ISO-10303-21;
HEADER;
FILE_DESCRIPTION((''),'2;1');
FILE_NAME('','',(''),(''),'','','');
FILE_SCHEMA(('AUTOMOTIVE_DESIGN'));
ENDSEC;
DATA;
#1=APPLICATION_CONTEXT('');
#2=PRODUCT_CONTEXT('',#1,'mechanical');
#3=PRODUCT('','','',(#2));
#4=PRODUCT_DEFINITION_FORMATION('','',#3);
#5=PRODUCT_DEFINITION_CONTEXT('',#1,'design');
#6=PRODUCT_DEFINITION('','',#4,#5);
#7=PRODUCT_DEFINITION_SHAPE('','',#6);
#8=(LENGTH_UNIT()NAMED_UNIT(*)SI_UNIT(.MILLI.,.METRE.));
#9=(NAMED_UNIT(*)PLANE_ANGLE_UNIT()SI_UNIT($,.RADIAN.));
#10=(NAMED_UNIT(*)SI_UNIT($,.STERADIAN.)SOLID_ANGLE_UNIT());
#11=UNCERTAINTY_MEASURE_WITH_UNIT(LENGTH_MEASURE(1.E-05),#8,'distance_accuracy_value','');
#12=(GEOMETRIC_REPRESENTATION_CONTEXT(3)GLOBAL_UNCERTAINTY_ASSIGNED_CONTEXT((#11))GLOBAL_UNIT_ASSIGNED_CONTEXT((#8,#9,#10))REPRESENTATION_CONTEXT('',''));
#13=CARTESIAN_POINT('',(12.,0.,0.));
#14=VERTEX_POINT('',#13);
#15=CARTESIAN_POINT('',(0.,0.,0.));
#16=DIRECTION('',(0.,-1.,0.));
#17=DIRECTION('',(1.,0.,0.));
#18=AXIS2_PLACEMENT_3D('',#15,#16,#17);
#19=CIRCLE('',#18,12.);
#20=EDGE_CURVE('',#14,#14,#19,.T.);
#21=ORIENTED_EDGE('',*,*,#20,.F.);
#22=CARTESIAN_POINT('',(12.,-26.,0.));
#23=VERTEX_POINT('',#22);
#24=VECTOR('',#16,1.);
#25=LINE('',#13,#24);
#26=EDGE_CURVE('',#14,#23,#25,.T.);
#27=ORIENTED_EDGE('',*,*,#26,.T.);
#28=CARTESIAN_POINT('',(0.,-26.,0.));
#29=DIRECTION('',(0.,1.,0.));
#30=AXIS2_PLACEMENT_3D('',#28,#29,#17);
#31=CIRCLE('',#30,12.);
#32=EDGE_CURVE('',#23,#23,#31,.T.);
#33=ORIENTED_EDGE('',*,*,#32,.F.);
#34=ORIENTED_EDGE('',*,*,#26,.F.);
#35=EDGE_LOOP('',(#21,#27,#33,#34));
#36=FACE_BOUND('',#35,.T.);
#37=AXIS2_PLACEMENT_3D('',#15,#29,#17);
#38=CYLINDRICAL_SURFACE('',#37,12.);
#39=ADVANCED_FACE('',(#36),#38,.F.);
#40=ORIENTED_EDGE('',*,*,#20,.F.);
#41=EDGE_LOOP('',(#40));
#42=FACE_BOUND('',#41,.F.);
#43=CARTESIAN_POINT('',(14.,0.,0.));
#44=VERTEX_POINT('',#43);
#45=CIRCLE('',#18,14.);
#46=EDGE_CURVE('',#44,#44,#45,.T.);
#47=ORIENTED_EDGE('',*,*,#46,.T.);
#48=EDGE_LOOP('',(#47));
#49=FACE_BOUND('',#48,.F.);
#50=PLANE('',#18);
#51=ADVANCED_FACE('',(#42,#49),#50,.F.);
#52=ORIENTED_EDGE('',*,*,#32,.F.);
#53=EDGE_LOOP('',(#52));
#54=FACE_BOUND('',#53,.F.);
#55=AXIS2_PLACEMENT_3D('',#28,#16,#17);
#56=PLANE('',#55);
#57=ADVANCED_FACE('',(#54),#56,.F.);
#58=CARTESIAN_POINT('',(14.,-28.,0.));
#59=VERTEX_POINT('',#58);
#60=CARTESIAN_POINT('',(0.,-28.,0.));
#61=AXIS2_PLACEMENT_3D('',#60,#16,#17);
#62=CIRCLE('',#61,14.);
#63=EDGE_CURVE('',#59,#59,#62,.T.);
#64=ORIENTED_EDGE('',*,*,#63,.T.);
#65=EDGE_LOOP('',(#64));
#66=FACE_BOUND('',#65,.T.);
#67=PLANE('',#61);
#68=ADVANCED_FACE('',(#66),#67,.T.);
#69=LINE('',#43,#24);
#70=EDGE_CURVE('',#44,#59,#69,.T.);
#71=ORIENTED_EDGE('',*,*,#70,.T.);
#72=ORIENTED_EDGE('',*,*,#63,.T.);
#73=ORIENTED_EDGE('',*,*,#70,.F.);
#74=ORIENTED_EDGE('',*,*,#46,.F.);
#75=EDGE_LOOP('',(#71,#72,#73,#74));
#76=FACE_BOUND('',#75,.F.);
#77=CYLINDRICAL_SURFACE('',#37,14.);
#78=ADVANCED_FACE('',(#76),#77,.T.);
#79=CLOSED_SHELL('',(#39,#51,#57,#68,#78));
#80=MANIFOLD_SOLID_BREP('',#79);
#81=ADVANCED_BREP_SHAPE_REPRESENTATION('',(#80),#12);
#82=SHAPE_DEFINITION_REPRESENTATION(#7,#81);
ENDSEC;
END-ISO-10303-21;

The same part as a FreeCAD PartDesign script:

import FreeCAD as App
import Part
import Sketcher

V = App.Vector
Q = App.Units.Quantity

doc = App.newDocument("Part")
body = doc.addObject("PartDesign::Body", "Body")

sketch1 = body.newObject("Sketcher::SketchObject", "Sketch")
sketch1.AttachmentSupport = (doc.getObject("XZ_Plane"), [""])
sketch1.MapMode = "FlatFace"
sketch1.addGeometry([
    Part.Circle(V(0, 0, 0), V(0, 0, 1), 14),
    Part.Circle(V(0, 0, 0), V(0, 0, 1), 12),
], False)
sketch1.addConstraint([
    Sketcher.Constraint("Coincident", 0, 3, -1, 1),
    Sketcher.Constraint("Coincident", 1, 3, -1, 1),
    Sketcher.Constraint("Diameter", 0, Q("28 mm")),
    Sketcher.Constraint("Diameter", 1, Q("24 mm")),
])
pad1 = body.newObject("PartDesign::Pad", "Pad")
pad1.Profile = sketch1
pad1.Length = 28

sketch2 = body.newObject("Sketcher::SketchObject", "Sketch001")
sketch2.AttachmentSupport = (doc.getObject("XZ_Plane"), [""])
sketch2.MapMode = "FlatFace"
sketch2.AttachmentOffset = App.Placement(V(0, 0, 28), App.Rotation())
sketch2.addGeometry(Part.Circle(V(0, 0, 0), V(0, 0, 1), 14), False)
sketch2.addConstraint([
    Sketcher.Constraint("Coincident", 0, 3, -1, 1),
    Sketcher.Constraint("Diameter", 0, Q("28 mm")),
])
pad2 = body.newObject("PartDesign::Pad", "Pad001")
pad2.Profile = sketch2
pad2.Length = 2
pad2.Reversed = True

doc.recompute()
